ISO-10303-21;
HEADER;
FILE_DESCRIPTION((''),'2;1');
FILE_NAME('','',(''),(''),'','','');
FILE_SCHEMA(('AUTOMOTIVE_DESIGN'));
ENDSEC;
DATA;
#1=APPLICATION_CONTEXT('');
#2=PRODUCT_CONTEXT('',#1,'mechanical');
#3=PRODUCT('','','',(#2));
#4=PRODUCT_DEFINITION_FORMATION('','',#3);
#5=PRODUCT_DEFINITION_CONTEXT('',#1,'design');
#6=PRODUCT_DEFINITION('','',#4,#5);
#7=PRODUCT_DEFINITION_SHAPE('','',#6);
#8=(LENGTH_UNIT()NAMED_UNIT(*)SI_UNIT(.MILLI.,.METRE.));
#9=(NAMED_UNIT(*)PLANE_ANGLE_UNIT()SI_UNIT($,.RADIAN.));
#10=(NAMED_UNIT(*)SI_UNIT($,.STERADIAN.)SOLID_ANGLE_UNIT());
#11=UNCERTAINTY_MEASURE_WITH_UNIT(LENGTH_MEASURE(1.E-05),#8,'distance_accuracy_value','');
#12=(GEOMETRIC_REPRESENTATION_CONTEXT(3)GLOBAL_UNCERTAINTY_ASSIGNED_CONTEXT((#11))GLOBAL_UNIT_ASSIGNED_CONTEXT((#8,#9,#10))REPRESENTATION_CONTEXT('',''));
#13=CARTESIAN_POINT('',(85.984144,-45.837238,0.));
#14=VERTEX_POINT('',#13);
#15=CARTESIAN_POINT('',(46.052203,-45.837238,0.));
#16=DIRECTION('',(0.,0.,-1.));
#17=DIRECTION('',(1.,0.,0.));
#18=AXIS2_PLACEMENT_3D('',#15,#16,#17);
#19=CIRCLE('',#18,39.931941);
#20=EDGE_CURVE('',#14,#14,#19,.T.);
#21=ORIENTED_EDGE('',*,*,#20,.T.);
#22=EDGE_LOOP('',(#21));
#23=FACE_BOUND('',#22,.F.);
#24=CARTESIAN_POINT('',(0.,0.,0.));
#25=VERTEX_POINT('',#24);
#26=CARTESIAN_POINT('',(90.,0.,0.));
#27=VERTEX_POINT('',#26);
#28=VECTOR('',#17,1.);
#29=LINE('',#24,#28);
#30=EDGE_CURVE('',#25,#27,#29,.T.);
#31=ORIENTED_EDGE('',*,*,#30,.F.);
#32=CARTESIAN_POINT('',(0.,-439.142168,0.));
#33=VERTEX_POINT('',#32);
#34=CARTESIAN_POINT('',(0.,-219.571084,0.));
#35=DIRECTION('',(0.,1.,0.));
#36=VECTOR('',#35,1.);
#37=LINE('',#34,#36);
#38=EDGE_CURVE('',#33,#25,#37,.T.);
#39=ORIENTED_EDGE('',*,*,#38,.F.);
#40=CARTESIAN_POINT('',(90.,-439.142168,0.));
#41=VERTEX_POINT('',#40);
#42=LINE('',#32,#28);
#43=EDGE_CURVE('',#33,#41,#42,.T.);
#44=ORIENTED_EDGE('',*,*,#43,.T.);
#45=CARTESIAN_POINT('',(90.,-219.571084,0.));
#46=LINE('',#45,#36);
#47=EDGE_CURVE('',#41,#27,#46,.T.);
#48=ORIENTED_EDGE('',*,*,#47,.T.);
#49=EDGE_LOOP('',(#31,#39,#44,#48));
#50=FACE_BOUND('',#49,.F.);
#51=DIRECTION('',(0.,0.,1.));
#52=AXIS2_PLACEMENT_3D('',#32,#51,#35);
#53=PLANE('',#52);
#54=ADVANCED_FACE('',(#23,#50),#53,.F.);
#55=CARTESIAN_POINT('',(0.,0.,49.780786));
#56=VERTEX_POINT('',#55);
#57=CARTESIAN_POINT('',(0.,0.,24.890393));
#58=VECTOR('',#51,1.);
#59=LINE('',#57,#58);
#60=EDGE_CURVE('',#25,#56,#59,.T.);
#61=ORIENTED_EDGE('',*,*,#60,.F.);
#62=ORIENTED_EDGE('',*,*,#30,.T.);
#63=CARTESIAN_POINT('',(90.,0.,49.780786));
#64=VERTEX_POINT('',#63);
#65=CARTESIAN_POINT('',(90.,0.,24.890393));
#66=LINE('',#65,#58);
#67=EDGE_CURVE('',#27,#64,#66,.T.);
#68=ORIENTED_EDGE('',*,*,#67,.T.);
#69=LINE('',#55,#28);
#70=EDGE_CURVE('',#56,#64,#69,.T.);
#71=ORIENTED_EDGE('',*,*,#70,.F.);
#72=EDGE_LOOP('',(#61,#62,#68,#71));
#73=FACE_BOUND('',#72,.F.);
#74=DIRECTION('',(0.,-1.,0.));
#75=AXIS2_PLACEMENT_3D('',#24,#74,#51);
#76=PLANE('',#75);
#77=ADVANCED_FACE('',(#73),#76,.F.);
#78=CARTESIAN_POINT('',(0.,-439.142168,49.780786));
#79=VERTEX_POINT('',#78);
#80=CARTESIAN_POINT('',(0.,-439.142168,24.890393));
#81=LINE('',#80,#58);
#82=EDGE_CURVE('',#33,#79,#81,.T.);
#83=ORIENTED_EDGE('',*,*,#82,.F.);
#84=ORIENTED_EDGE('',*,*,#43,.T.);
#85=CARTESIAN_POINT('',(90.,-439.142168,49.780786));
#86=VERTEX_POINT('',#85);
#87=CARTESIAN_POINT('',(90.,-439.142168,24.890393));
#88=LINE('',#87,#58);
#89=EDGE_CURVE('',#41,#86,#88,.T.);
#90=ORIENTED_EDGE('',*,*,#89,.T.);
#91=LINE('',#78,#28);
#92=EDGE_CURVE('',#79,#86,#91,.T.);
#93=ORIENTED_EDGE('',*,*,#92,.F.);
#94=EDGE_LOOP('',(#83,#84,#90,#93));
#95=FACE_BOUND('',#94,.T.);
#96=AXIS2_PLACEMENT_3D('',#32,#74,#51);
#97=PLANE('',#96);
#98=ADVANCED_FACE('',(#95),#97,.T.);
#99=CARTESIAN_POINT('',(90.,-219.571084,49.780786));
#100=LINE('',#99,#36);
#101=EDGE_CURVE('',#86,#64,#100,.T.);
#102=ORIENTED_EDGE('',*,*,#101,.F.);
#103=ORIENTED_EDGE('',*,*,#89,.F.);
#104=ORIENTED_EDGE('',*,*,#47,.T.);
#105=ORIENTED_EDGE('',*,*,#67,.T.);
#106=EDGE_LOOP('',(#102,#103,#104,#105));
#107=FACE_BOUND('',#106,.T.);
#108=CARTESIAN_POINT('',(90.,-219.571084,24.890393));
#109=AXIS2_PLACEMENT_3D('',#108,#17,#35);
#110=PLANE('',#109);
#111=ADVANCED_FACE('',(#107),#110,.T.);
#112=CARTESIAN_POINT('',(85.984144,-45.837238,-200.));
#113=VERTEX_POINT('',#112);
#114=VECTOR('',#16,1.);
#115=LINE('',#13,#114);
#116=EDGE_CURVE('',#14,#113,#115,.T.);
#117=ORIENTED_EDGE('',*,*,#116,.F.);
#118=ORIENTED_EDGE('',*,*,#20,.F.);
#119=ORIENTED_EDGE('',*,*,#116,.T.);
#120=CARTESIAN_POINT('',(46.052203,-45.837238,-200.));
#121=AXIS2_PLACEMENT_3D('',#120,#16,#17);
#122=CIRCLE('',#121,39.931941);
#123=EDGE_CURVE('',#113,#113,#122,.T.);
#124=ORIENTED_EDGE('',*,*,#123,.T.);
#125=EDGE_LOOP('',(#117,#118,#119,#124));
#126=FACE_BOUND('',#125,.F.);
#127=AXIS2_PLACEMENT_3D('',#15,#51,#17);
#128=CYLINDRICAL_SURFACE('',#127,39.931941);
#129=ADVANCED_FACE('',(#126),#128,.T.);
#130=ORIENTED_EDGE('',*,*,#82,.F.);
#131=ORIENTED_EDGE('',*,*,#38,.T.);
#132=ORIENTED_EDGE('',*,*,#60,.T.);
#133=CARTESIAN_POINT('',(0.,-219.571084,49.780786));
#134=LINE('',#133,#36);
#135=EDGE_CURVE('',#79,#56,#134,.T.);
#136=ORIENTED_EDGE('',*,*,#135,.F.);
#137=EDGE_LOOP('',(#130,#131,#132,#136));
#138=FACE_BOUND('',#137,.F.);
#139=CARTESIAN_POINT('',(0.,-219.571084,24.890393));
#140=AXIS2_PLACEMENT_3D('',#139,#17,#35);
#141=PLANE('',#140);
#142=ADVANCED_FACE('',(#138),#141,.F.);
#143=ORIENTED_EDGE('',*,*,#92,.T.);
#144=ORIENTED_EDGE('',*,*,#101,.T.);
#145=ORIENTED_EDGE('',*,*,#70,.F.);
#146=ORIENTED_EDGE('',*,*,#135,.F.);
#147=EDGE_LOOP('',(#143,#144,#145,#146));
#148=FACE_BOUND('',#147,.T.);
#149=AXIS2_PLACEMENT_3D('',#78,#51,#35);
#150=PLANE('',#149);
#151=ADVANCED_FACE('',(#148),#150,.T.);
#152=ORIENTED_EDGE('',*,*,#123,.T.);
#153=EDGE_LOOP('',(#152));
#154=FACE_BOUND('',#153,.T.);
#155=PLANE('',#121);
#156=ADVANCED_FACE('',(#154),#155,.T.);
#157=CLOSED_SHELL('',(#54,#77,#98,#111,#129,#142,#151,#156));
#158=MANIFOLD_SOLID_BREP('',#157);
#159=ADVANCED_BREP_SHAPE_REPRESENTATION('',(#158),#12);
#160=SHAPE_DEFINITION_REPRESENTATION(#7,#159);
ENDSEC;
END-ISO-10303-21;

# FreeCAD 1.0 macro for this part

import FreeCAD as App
import Part
import Sketcher
from FreeCAD import Vector
Q = App.Units.Quantity


def add_polygon(sketch, points):
    """Adds a closed chain of lines whose ends are joined by coincident constraints."""
    first, n = sketch.GeometryCount, len(points)
    for a, b in zip(points, points[1:] + points[:1]):
        sketch.addGeometry(Part.LineSegment(App.Vector(*a, 0), App.Vector(*b, 0)), False)
    for i in range(n):
        sketch.addConstraint(Sketcher.Constraint("Coincident", first + i, 2, first + (i + 1) % n, 1))

doc = App.newDocument("Part")
body = doc.addObject("PartDesign::Body", "Body")

sketch1 = doc.addObject("Sketcher::SketchObject", "Sketch")
body.addObject(sketch1)
sketch1.AttachmentSupport = (doc.YZ_Plane, [""])
sketch1.MapMode = "FlatFace"
add_polygon(sketch1, [(-439, 50), (-439, 0), (0, 0), (0, 50)])
sketch1.addConstraint([
    Sketcher.Constraint("Vertical", 0),
    Sketcher.Constraint("Horizontal", 1),
    Sketcher.Constraint("Vertical", 2),
    Sketcher.Constraint("Horizontal", 3),
    Sketcher.Constraint("Coincident", 1, 2, -1, 1),
    Sketcher.Constraint("DistanceX", 1, 1, 1, 2, Q("439.142168 mm")),
    Sketcher.Constraint("DistanceY", 0, 2, 0, 1, Q("49.780786 mm")),
])
pad1 = doc.addObject("PartDesign::Pad", "Pad")
body.addObject(pad1)
pad1.Profile = sketch1
pad1.Length = 90

sketch2 = doc.addObject("Sketcher::SketchObject", "Sketch001")
body.addObject(sketch2)
sketch2.AttachmentSupport = (doc.XY_Plane, [""])
sketch2.MapMode = "FlatFace"
sketch2.addGeometry(Part.Circle(Vector(46, -46, 0), Vector(0, 0, 1), 40), False)
sketch2.addConstraint([
    Sketcher.Constraint("Diameter", 0, Q("79.863882 mm")),
    Sketcher.Constraint("DistanceX", -1, 1, 0, 3, Q("46.052203 mm")),
    Sketcher.Constraint("DistanceY", 0, 3, -1, 1, Q("45.837238 mm")),
])
pad2 = doc.addObject("PartDesign::Pad", "Pad001")
body.addObject(pad2)
pad2.Profile = sketch2
pad2.Length = 200
pad2.Reversed = True

doc.recompute()
